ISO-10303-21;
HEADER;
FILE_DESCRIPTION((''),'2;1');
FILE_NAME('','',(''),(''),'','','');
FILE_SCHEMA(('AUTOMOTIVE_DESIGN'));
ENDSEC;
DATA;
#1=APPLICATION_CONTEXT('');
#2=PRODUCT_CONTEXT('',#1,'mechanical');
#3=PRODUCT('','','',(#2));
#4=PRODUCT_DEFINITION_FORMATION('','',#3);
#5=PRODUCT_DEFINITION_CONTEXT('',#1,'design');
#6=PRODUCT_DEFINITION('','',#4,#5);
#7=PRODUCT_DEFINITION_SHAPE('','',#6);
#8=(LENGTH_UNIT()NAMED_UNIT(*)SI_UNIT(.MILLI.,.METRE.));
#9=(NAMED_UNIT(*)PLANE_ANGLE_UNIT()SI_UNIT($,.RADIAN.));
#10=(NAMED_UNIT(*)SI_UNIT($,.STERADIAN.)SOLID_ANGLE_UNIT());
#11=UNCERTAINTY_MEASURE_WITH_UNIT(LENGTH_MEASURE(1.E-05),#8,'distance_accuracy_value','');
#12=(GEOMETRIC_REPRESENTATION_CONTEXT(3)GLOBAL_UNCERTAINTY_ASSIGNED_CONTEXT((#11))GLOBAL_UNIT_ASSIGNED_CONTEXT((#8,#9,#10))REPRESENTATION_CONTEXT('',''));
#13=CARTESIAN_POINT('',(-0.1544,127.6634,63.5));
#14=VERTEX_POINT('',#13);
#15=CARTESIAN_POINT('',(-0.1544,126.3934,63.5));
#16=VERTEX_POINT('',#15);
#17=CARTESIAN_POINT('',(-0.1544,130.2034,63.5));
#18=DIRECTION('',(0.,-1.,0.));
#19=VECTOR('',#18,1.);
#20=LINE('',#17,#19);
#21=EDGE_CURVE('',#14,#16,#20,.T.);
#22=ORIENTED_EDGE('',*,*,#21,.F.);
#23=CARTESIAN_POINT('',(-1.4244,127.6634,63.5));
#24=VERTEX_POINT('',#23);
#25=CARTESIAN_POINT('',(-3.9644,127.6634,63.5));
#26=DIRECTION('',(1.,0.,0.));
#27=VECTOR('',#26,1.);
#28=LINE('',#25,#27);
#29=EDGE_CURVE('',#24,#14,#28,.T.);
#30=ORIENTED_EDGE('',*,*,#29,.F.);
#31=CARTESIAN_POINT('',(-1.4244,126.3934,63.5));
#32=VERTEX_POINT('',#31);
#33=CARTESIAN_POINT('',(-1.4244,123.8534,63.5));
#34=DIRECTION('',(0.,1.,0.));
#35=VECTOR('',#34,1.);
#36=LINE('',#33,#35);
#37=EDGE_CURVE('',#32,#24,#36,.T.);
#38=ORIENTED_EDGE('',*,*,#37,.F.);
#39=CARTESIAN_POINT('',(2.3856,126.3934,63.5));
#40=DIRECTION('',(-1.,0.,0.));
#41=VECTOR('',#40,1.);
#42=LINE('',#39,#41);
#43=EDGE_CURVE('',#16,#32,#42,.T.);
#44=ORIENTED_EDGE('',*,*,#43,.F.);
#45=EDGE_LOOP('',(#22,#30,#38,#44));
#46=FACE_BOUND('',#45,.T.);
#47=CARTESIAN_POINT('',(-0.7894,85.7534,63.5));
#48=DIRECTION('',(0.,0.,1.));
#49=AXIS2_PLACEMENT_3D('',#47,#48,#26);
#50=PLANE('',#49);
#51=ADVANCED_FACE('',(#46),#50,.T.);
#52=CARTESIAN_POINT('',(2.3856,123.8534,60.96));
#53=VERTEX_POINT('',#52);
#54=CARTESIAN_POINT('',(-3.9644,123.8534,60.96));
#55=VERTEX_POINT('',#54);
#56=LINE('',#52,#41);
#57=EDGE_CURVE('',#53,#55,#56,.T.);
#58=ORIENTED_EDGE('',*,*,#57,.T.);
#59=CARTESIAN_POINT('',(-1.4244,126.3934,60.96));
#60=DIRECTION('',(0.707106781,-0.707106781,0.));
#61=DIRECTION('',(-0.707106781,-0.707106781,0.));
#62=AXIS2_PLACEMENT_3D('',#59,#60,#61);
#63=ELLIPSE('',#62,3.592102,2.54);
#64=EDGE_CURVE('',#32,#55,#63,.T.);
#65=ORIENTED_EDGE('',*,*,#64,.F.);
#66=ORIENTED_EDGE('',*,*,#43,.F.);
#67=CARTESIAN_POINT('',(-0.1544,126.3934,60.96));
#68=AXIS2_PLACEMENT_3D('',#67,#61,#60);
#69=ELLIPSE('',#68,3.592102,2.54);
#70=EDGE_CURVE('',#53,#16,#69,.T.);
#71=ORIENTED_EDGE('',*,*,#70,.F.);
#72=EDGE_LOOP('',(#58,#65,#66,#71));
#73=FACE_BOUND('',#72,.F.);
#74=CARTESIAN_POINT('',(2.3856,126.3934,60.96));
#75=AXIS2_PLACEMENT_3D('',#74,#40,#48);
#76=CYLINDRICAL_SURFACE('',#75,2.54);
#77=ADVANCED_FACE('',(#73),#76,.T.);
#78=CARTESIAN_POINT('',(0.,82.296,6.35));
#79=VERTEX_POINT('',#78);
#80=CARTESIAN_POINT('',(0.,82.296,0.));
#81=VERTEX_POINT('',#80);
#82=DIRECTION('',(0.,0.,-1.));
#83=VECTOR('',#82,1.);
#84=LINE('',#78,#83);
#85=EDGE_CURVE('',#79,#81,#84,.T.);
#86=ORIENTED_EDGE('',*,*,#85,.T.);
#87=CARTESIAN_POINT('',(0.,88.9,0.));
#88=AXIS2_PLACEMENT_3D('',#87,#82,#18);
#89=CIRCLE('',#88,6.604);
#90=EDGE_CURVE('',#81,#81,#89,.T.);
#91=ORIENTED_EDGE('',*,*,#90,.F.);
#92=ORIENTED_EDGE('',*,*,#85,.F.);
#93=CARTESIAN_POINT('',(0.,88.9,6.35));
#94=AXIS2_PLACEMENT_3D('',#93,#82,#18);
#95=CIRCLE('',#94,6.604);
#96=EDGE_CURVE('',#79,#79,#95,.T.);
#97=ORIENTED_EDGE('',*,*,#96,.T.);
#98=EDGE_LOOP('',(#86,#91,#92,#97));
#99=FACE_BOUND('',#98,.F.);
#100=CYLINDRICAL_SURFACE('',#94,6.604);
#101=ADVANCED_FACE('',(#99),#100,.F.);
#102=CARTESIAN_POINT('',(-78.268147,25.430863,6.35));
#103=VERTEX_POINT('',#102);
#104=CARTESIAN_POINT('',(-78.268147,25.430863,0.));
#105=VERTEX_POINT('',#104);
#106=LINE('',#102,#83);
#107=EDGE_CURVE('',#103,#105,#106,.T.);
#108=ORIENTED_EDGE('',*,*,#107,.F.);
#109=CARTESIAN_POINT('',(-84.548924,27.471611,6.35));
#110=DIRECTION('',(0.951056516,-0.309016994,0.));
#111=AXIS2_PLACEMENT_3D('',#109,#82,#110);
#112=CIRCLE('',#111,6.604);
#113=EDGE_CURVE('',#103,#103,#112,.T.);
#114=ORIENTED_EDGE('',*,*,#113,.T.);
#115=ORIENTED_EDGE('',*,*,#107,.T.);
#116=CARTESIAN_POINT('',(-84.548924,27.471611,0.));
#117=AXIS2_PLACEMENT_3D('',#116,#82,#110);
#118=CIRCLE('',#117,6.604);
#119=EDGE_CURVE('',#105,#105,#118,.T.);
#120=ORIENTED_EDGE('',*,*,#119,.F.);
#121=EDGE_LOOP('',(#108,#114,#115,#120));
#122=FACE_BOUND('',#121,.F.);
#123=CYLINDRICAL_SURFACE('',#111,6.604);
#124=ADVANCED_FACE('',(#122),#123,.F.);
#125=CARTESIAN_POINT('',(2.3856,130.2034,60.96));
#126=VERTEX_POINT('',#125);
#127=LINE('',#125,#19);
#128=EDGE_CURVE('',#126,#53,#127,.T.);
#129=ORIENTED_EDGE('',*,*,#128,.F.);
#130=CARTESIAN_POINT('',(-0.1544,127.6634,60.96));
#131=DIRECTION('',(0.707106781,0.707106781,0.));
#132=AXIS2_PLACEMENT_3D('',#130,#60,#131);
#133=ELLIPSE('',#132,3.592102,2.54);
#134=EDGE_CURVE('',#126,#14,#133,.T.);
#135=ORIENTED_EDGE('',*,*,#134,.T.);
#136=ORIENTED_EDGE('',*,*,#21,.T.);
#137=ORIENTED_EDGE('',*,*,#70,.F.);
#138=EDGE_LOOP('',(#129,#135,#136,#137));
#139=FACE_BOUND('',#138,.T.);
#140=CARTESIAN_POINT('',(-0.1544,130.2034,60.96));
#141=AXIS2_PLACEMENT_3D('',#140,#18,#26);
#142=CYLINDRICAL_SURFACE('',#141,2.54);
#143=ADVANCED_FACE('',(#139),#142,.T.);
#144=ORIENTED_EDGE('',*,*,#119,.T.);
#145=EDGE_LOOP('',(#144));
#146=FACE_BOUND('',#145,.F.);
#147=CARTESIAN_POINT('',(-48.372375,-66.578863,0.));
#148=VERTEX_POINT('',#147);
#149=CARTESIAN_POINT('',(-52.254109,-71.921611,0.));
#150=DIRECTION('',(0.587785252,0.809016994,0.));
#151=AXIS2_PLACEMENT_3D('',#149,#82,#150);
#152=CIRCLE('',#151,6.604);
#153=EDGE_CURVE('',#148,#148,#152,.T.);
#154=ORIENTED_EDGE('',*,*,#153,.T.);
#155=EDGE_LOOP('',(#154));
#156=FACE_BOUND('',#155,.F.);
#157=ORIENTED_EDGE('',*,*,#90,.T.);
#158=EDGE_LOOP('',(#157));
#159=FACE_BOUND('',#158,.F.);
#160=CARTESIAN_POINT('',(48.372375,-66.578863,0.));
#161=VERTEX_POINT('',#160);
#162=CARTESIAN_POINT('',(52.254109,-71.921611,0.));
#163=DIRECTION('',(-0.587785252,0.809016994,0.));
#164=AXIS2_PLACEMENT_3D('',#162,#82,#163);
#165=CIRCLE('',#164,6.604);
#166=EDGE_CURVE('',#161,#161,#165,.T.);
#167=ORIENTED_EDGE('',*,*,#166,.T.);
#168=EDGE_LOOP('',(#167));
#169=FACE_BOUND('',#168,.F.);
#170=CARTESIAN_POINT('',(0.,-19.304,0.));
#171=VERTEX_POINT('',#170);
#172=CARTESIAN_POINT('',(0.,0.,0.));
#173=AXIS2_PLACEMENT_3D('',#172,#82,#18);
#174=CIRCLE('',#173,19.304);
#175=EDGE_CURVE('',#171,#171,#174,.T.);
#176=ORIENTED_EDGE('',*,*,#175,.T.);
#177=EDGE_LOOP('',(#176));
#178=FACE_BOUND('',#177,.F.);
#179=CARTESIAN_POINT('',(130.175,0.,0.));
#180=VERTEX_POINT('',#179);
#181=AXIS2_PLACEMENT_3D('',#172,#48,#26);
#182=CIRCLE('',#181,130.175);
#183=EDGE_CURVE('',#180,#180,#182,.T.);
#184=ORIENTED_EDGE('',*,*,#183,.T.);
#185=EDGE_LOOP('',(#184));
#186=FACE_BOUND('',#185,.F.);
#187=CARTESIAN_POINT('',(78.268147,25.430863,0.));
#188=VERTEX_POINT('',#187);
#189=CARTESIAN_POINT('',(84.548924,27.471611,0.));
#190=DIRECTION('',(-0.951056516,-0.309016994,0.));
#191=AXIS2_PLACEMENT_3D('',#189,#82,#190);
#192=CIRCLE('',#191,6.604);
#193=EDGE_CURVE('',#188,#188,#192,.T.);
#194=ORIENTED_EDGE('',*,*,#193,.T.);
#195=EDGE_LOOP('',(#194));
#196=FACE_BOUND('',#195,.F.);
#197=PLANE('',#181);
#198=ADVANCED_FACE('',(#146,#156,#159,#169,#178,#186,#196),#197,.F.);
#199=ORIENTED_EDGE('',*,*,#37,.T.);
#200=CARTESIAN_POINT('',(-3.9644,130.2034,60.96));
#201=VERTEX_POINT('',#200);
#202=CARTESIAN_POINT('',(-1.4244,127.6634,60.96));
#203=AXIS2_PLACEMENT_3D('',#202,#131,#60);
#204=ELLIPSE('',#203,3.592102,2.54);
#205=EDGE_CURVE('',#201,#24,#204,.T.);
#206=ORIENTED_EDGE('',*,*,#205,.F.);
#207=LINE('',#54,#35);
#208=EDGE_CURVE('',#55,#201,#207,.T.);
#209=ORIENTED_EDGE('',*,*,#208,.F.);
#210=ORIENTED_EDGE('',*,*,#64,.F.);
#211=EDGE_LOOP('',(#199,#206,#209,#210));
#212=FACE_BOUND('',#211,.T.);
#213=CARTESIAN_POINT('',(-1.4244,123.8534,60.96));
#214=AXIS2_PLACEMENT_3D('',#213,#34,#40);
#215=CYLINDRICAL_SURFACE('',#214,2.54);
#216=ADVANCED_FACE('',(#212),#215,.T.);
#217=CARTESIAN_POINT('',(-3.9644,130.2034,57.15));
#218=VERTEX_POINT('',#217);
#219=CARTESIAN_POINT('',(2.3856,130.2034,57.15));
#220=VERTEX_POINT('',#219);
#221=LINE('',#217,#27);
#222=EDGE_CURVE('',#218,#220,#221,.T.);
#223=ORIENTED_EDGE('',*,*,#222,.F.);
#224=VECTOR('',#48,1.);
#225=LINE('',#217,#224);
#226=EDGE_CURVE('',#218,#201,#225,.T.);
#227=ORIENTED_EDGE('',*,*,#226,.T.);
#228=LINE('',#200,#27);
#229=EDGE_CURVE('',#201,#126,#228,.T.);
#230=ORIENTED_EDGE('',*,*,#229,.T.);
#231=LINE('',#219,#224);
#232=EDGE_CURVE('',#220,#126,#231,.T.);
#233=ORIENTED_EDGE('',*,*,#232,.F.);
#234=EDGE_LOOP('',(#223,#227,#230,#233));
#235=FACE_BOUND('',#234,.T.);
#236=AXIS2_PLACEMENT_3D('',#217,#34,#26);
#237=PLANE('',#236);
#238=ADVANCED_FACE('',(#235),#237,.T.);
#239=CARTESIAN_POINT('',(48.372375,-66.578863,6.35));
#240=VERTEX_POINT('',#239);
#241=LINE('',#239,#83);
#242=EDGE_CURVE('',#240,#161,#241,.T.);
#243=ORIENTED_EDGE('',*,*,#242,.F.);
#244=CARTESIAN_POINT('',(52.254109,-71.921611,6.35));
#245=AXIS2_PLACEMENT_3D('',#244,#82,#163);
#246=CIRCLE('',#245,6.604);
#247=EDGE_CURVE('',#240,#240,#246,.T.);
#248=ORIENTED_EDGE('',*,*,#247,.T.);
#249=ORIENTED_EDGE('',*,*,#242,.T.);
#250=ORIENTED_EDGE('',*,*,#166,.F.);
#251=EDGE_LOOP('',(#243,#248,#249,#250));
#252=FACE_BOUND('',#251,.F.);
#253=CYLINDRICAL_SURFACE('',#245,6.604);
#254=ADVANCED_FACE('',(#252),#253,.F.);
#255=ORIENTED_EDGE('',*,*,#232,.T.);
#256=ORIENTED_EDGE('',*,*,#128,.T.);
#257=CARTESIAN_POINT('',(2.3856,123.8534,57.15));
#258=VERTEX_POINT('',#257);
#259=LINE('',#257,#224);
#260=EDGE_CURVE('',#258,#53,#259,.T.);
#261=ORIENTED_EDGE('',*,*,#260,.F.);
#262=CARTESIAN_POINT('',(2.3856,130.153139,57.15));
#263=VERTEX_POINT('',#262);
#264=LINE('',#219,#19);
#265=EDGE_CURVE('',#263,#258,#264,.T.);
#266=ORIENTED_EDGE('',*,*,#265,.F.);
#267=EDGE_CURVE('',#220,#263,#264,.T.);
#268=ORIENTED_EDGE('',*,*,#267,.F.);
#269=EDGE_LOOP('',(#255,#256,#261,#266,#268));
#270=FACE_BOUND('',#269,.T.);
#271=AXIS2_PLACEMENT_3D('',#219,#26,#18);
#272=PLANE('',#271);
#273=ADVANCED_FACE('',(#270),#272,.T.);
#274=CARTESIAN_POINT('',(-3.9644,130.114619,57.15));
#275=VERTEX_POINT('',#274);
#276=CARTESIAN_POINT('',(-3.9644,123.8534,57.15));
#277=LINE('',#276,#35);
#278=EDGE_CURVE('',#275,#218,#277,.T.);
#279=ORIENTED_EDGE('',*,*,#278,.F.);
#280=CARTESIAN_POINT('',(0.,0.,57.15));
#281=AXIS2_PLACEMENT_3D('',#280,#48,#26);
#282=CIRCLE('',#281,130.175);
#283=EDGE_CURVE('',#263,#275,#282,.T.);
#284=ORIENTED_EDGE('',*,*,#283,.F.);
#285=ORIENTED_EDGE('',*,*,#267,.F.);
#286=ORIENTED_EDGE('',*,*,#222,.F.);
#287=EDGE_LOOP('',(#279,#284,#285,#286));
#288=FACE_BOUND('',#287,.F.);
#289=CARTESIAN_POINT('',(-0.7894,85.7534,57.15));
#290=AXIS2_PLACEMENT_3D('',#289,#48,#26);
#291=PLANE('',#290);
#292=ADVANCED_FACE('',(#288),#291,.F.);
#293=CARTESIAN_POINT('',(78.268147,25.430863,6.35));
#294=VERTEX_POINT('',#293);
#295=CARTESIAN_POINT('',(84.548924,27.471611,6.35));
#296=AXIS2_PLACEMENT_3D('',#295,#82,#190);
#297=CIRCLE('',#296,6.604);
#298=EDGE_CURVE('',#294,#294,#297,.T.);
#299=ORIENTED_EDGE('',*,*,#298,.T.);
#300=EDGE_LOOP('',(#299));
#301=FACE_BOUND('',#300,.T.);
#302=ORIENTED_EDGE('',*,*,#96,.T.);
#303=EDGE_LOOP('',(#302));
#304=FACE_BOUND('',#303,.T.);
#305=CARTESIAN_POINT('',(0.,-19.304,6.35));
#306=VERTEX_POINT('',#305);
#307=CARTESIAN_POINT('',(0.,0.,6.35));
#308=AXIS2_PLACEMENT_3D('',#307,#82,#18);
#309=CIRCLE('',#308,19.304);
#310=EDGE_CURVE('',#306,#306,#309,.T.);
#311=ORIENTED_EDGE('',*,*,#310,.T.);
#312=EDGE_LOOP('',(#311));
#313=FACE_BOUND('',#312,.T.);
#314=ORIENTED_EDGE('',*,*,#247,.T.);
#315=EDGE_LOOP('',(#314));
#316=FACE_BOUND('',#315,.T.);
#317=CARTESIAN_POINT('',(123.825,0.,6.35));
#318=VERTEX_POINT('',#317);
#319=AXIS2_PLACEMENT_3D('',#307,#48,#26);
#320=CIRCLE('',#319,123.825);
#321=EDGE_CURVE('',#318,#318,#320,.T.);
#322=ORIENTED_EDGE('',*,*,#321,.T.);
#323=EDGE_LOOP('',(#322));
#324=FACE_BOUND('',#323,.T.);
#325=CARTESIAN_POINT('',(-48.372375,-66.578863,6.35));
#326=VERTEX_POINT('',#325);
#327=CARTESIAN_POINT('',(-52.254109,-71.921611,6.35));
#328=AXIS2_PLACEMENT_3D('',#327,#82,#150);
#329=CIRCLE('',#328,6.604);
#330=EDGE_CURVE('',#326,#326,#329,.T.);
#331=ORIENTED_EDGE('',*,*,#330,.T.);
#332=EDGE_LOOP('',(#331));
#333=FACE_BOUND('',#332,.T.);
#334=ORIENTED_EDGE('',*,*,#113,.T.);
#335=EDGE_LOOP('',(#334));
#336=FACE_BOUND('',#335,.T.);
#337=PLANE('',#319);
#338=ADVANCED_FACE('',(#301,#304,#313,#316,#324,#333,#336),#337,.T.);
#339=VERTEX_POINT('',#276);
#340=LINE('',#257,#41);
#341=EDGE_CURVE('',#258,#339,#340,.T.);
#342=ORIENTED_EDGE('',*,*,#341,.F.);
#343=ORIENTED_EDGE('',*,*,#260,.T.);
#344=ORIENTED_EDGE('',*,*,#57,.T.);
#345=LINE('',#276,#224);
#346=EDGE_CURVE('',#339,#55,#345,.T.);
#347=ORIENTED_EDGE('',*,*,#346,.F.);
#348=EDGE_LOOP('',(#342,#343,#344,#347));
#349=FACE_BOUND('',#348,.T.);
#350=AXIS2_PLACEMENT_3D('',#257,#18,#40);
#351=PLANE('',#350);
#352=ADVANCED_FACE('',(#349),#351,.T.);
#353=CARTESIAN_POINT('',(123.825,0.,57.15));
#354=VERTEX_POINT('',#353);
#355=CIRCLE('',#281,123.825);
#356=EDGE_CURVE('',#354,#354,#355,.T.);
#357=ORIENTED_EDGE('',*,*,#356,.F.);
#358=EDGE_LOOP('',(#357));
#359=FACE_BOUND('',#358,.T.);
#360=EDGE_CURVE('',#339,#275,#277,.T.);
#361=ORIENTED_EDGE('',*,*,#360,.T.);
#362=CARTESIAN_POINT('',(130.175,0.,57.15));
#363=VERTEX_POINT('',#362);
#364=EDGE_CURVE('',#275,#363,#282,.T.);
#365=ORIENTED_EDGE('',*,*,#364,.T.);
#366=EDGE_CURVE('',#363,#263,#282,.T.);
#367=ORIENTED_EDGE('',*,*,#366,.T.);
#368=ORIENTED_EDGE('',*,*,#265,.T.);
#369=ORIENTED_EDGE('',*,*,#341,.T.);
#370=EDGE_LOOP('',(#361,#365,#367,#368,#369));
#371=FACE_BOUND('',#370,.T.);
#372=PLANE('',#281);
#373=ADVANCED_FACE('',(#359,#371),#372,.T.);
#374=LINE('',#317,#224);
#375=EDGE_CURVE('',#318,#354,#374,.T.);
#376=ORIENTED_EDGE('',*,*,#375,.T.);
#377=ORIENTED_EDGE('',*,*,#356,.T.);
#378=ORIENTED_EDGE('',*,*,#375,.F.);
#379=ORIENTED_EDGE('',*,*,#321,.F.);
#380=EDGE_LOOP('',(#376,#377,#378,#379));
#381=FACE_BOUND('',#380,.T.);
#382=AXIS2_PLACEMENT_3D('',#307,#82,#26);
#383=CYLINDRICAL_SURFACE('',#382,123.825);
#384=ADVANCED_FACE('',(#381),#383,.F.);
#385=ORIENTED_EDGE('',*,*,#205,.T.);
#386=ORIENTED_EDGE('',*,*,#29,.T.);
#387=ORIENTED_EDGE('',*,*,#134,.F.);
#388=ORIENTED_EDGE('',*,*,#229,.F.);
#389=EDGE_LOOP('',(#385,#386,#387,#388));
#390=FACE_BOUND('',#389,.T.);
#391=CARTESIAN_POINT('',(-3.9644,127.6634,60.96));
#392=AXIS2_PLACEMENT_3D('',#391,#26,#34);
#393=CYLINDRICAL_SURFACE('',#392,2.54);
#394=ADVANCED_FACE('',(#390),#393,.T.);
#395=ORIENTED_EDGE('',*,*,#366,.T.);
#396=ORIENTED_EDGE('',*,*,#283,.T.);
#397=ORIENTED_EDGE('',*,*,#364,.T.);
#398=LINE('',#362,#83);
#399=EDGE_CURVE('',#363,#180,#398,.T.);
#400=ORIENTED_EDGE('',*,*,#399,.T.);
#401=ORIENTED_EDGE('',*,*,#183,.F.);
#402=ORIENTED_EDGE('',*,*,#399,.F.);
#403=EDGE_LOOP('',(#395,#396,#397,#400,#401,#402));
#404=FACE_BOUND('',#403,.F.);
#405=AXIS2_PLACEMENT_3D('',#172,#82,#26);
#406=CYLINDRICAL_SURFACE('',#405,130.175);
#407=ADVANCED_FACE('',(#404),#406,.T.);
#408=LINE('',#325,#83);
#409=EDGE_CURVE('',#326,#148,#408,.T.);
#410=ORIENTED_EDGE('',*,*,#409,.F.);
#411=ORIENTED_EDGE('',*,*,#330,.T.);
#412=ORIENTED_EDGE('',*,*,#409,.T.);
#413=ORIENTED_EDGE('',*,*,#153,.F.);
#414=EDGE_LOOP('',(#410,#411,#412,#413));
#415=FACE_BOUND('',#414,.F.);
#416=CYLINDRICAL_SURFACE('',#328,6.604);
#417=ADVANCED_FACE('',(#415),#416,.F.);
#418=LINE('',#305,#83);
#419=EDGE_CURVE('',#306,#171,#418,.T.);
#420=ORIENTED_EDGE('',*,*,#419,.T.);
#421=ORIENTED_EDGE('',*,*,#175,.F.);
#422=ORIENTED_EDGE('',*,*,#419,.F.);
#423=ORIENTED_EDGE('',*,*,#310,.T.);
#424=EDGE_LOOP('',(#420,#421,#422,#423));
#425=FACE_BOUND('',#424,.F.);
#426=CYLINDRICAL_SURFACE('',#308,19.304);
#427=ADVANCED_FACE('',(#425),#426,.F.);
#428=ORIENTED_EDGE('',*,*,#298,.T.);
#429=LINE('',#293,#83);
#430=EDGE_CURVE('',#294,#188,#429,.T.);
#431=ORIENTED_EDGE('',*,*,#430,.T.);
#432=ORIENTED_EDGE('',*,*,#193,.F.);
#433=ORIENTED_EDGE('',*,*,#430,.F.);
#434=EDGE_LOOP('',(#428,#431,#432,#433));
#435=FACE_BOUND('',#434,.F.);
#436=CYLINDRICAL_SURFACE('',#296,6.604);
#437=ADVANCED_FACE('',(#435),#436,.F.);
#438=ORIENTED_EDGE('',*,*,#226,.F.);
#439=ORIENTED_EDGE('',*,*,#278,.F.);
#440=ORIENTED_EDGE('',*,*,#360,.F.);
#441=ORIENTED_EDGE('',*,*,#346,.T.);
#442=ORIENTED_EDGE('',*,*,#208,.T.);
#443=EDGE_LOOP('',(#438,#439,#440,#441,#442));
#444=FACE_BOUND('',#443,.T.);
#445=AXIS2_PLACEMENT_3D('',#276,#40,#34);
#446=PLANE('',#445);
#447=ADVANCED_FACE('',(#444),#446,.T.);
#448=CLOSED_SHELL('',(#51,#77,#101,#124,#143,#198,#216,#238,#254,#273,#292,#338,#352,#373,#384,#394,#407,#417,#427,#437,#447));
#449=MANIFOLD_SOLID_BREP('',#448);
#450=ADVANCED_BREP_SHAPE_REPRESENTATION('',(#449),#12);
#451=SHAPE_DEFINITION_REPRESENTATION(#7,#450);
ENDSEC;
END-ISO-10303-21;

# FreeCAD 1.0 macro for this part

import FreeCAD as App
import Part
import Sketcher
Q = App.Units.Quantity


def edges_at(feature, points):
    """Names of the edges that pass closest to the given points."""
    edges = feature.Shape.Edges
    near = lambda p: min(range(len(edges)), key=lambda i: edges[i].distToShape(Part.Vertex(*p))[0])
    return sorted({f"Edge{near(p) + 1}" for p in points})


def add_polygon(sketch, points):
    """Adds a closed chain of lines whose ends are joined by coincident constraints."""
    first, n = sketch.GeometryCount, len(points)
    for a, b in zip(points, points[1:] + points[:1]):
        sketch.addGeometry(Part.LineSegment(App.Vector(*a, 0), App.Vector(*b, 0)), False)
    for i in range(n):
        sketch.addConstraint(Sketcher.Constraint("Coincident", first + i, 2, first + (i + 1) % n, 1))

doc = App.newDocument("Part")
body = doc.addObject("PartDesign::Body", "Body")

# Sketch on XY plane
sketch1 = body.newObject("Sketcher::SketchObject", "Sketch")
sketch1.AttachmentSupport = (doc.getObject("XY_Plane"), [""])
sketch1.MapMode = "FlatFace"
sketch1.addGeometry(Part.Circle(App.Vector(0, 0, 0), App.Vector(0, 0, 1), 130), False)
sketch1.addConstraint(Sketcher.Constraint("Coincident", 0, 3, -1, 1))
sketch1.addConstraint(Sketcher.Constraint("Diameter", 0, Q("10.25 in")))
pad1 = body.newObject("PartDesign::Pad", "Pad")
pad1.Profile = sketch1
pad1.Length = Q("0.25 in")

# Sketch on XY plane
sketch2 = body.newObject("Sketcher::SketchObject", "Sketch001")
sketch2.AttachmentSupport = (doc.getObject("XY_Plane"), [""])
sketch2.MapMode = "FlatFace"
sketch2.AttachmentOffset = App.Placement(App.Vector(0, 0, 0.25 * 25.4), App.Rotation())
sketch2.addGeometry(Part.Circle(App.Vector(0, 0, 0), App.Vector(0, 0, 1), 130), False)
sketch2.addGeometry(Part.Circle(App.Vector(0, 0, 0), App.Vector(0, 0, 1), 124), False)
sketch2.addConstraint(Sketcher.Constraint("Coincident", 0, 3, -1, 1))
sketch2.addConstraint(Sketcher.Constraint("Coincident", 1, 3, -1, 1))
sketch2.addConstraint(Sketcher.Constraint("Diameter", 0, Q("10.25 in")))
sketch2.addConstraint(Sketcher.Constraint("Diameter", 1, Q("9.75 in")))
pad2 = body.newObject("PartDesign::Pad", "Pad001")
pad2.Profile = sketch2
pad2.Length = Q("2 in")

# Sketch on XY plane
sketch3 = body.newObject("Sketcher::SketchObject", "Sketch002")
sketch3.AttachmentSupport = (doc.getObject("XY_Plane"), [""])
sketch3.MapMode = "FlatFace"
sketch3.AttachmentOffset = App.Placement(App.Vector(0, 0, 0.25 * 25.4), App.Rotation())
sketch3.addGeometry(Part.Circle(App.Vector(0, 0, 0), App.Vector(0, 0, 1), 19), False)
sketch3.addConstraint(Sketcher.Constraint("Coincident", 0, 3, -1, 1))
sketch3.addConstraint(Sketcher.Constraint("Diameter", 0, Q("1.52 in")))
doc.recompute()
hole = body.newObject("PartDesign::Hole", "Hole")
hole.Profile = sketch3
hole.ThreadType = "None"
hole.Diameter = Q("1.52 in")
hole.DepthType = "ThroughAll"

# Sketch on XY plane
sketch4 = body.newObject("Sketcher::SketchObject", "Sketch003")
sketch4.AttachmentSupport = (doc.getObject("XY_Plane"), [""])
sketch4.MapMode = "FlatFace"
sketch4.AttachmentOffset = App.Placement(App.Vector(0, 0, 0.25 * 25.4), App.Rotation())
sketch4.addGeometry(Part.Circle(App.Vector(0, 89, 0), App.Vector(0, 0, 1), 7), False)
sketch4.addConstraint(Sketcher.Constraint("PointOnObject", 0, 3, -2))
sketch4.addConstraint(Sketcher.Constraint("Diameter", 0, Q("0.52 in")))
sketch4.addConstraint(Sketcher.Constraint("DistanceY", -1, 1, 0, 3, Q("3.5 in")))
doc.recompute()
hole2 = body.newObject("PartDesign::Hole", "Hole001")
hole2.Profile = sketch4
hole2.ThreadType = "None"
hole2.Diameter = Q("0.52 in")
hole2.DepthType = "ThroughAll"
doc.recompute()

polarpattern = body.newObject("PartDesign::PolarPattern", "PolarPattern")
polarpattern.Originals = [hole2]
polarpattern.Axis = (doc.getObject("Z_Axis"), [""])
polarpattern.Angle = 360
polarpattern.Occurrences = 5
body.Tip = polarpattern

# Sketch on XY plane
sketch5 = body.newObject("Sketcher::SketchObject", "Sketch004")
sketch5.AttachmentSupport = (doc.getObject("XY_Plane"), [""])
sketch5.MapMode = "FlatFace"
sketch5.AttachmentOffset = App.Placement(App.Vector(0, 0, 2.25 * 25.4), App.Rotation())
add_polygon(sketch5, [(2, 130), (-4, 130), (-4, 124), (2, 124)])  # lines 0-3
sketch5.addConstraint(Sketcher.Constraint("Horizontal", 0))
sketch5.addConstraint(Sketcher.Constraint("Vertical", 1))
sketch5.addConstraint(Sketcher.Constraint("Horizontal", 2))
sketch5.addConstraint(Sketcher.Constraint("Vertical", 3))
sketch5.addConstraint(Sketcher.Constraint("Equal", 2, 1))
sketch5.addConstraint(Sketcher.Constraint("DistanceX", 0, 2, 0, 1, Q("0.25 in")))
sketch5.addConstraint(Sketcher.Constraint("DistanceX", 0, 2, -1, 1, 3.9644))
sketch5.addConstraint(Sketcher.Constraint("DistanceY", -1, 1, 0, 2, 130.2034))
pad3 = body.newObject("PartDesign::Pad", "Pad002")
pad3.Profile = sketch5
pad3.Length = Q("0.25 in")
doc.recompute()

fillet = body.newObject("PartDesign::Fillet", "Fillet")
fillet.Base = (pad3, edges_at(pad3, [
    (-0.789, 130.203, 63.5),
    (2.386, 127.028, 63.5),
    (-0.789, 123.853, 63.5),
    (-3.964, 127.028, 63.5),
]))
fillet.Radius = Q("0.1 in")

doc.recompute()
